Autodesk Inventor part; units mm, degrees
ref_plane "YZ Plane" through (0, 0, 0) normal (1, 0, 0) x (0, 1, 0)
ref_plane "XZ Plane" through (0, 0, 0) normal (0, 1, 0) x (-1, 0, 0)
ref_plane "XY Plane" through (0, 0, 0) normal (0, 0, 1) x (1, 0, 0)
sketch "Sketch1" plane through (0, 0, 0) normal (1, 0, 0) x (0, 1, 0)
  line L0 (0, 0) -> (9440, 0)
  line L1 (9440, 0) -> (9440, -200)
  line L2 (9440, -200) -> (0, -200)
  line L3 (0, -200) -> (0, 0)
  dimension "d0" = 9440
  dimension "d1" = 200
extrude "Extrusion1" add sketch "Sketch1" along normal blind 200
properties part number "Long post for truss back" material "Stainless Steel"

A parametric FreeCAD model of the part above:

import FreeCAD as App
import Part
import Sketcher

V = App.Vector
Q = App.Units.Quantity


def add_polygon(sketch, points):
    """Adds a closed chain of lines whose ends are joined by coincident constraints."""
    first, n = sketch.GeometryCount, len(points)
    for a, b in zip(points, points[1:] + points[:1]):
        sketch.addGeometry(Part.LineSegment(App.Vector(*a, 0), App.Vector(*b, 0)), False)
    for i in range(n):
        sketch.addConstraint(Sketcher.Constraint("Coincident", first + i, 2, first + (i + 1) % n, 1))

doc = App.newDocument("Part")
body = doc.addObject("PartDesign::Body", "Body")

sketch1 = body.newObject("Sketcher::SketchObject", "Sketch")
sketch1.AttachmentSupport = (doc.getObject("YZ_Plane"), [""])
sketch1.MapMode = "FlatFace"
add_polygon(sketch1, [(9440, 0), (0, 0), (0, -200), (9440, -200)])
sketch1.addConstraint(Sketcher.Constraint("Horizontal", 0))
sketch1.addConstraint(Sketcher.Constraint("Vertical", 1))
sketch1.addConstraint(Sketcher.Constraint("Horizontal", 2))
sketch1.addConstraint(Sketcher.Constraint("Vertical", 3))
sketch1.addConstraint(Sketcher.Constraint("Coincident", 0, 2, -1, 1))
sketch1.addConstraint(Sketcher.Constraint("DistanceX", 0, 2, 0, 1, Q("9440 mm")))
sketch1.addConstraint(Sketcher.Constraint("DistanceY", 1, 2, 1, 1, Q("200 mm")))
pad1 = body.newObject("PartDesign::Pad", "Pad")
pad1.Profile = sketch1
pad1.Length = 200

doc.recompute()
